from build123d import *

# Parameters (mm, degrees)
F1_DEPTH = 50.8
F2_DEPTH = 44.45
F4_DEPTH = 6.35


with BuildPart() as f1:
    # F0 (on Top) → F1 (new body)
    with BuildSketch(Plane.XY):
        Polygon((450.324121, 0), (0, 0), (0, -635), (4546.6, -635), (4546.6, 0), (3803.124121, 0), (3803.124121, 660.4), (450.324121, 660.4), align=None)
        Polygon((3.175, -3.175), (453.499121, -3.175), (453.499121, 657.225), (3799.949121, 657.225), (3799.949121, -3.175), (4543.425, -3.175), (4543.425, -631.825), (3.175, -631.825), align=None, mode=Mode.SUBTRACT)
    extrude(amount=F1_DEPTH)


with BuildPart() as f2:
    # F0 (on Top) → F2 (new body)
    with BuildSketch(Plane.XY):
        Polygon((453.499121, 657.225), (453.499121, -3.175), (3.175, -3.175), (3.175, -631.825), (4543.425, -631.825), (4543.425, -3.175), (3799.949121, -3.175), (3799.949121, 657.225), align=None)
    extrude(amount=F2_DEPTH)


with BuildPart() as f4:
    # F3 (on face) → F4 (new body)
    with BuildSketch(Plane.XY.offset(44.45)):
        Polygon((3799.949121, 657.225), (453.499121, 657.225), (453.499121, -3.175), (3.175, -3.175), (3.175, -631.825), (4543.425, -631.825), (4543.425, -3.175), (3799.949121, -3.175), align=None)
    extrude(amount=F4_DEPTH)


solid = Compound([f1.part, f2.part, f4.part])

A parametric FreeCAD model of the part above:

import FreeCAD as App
import Part
import Sketcher

V = App.Vector
Q = App.Units.Quantity

doc = App.newDocument("Part")
body = doc.addObject("PartDesign::Body", "Body")

sketch1 = body.newObject("Sketcher::SketchObject", "Sketch")
sketch1.AttachmentSupport = (doc.getObject("XY_Plane"), [""])
sketch1.MapMode = "FlatFace"
sketch1.addGeometry([
    Part.LineSegment(V(450.324121, 0, 0), V(0, 0, 0)),
    Part.LineSegment(V(0, 0, 0), V(0, -635, 0)),
    Part.LineSegment(V(0, -635, 0), V(4546.6, -635, 0)),
    Part.LineSegment(V(4546.6, -635, 0), V(4546.6, 0, 0)),
    Part.LineSegment(V(4546.6, 0, 0), V(3803.124121, 0, 0)),
    Part.LineSegment(V(3803.124121, 0, 0), V(3803.124121, 660.4, 0)),
    Part.LineSegment(V(3803.124121, 660.4, 0), V(450.324121, 660.4, 0)),
    Part.LineSegment(V(450.324121, 660.4, 0), V(450.324121, 0, 0)),
    Part.LineSegment(V(3.175, -631.825, 0), V(3.175, -3.175, 0)),
    Part.LineSegment(V(3.175, -3.175, 0), V(453.499121, -3.175, 0)),
    Part.LineSegment(V(453.499121, -3.175, 0), V(453.499121, 657.225, 0)),
    Part.LineSegment(V(453.499121, 657.225, 0), V(3799.949121, 657.225, 0)),
    Part.LineSegment(V(3799.949121, 657.225, 0), V(3799.949121, -3.175, 0)),
    Part.LineSegment(V(3799.949121, -3.175, 0), V(4543.425, -3.175, 0)),
    Part.LineSegment(V(4543.425, -3.175, 0), V(4543.425, -631.825, 0)),
    Part.LineSegment(V(4543.425, -631.825, 0), V(3.175, -631.825, 0)),
], False)
sketch1.addConstraint([
    Sketcher.Constraint("Coincident", 0, 2, 1, 1),
    Sketcher.Constraint("Coincident", 1, 2, 2, 1),
    Sketcher.Constraint("Coincident", 2, 2, 3, 1),
    Sketcher.Constraint("Coincident", 3, 2, 4, 1),
    Sketcher.Constraint("Coincident", 4, 2, 5, 1),
    Sketcher.Constraint("Coincident", 5, 2, 6, 1),
    Sketcher.Constraint("Coincident", 6, 2, 7, 1),
    Sketcher.Constraint("Coincident", 7, 2, 0, 1),
    Sketcher.Constraint("Coincident", 8, 2, 9, 1),
    Sketcher.Constraint("Coincident", 9, 2, 10, 1),
    Sketcher.Constraint("Coincident", 10, 2, 11, 1),
    Sketcher.Constraint("Coincident", 11, 2, 12, 1),
    Sketcher.Constraint("Coincident", 12, 2, 13, 1),
    Sketcher.Constraint("Coincident", 13, 2, 14, 1),
    Sketcher.Constraint("Coincident", 14, 2, 15, 1),
    Sketcher.Constraint("Coincident", 15, 2, 8, 1),
    Sketcher.Constraint("Horizontal", 0),
    Sketcher.Constraint("Vertical", 1),
    Sketcher.Constraint("Horizontal", 2),
    Sketcher.Constraint("Vertical", 3),
    Sketcher.Constraint("Horizontal", 4),
    Sketcher.Constraint("Vertical", 5),
    Sketcher.Constraint("Horizontal", 6),
    Sketcher.Constraint("Vertical", 7),
    Sketcher.Constraint("Vertical", 8),
    Sketcher.Constraint("Horizontal", 9),
    Sketcher.Constraint("Vertical", 10),
    Sketcher.Constraint("Horizontal", 11),
    Sketcher.Constraint("Vertical", 12),
    Sketcher.Constraint("Horizontal", 13),
    Sketcher.Constraint("Vertical", 14),
    Sketcher.Constraint("Horizontal", 15),
    Sketcher.Constraint("Coincident", 0, 2, -1, 1),
    Sketcher.Constraint("PointOnObject", 3, 2, -1),
    Sketcher.Constraint("Horizontal", 9, 2, 12, 2),
    Sketcher.Constraint("Equal", 0, 9),
    Sketcher.Constraint("Equal", 4, 13),
    Sketcher.Constraint("Equal", 7, 10),
    Sketcher.Constraint("DistanceX", 2, 1, 2, 2, Q("179 in")),
    Sketcher.Constraint("DistanceX", 6, 2, 6, 1, Q("132 in")),
    Sketcher.Constraint("DistanceY", 1, 2, 1, 1, Q("25 in")),
    Sketcher.Constraint("DistanceY", 5, 1, 5, 2, Q("26 in")),
    Sketcher.Constraint("DistanceX", 11, 1, 11, 2, Q("131.75 in")),
    Sketcher.Constraint("DistanceY", 8, 1, 8, 2, Q("24.75 in")),
    Sketcher.Constraint("DistanceX", -1, 1, 8, 2, Q("0.125 in")),
    Sketcher.Constraint("DistanceY", 8, 2, -1, 1, Q("0.125 in")),
    Sketcher.Constraint("DistanceX", 0, 2, 0, 1, Q("450.324121 mm")),
])
pad1 = body.newObject("PartDesign::Pad", "Pad")
pad1.Profile = sketch1
pad1.Length = Q("2 in")
body2 = doc.addObject("PartDesign::Body", "Body001")

sketch2 = body2.newObject("Sketcher::SketchObject", "Sketch001")
sketch2.AttachmentSupport = (doc.getObject("XY_Plane001"), [""])
sketch2.MapMode = "FlatFace"
sketch2.addGeometry([
    Part.LineSegment(V(453.499121, 657.225, 0), V(453.499121, -3.175, 0)),
    Part.LineSegment(V(453.499121, -3.175, 0), V(3.175, -3.175, 0)),
    Part.LineSegment(V(3.175, -3.175, 0), V(3.175, -631.825, 0)),
    Part.LineSegment(V(3.175, -631.825, 0), V(4543.425, -631.825, 0)),
    Part.LineSegment(V(4543.425, -631.825, 0), V(4543.425, -3.175, 0)),
    Part.LineSegment(V(4543.425, -3.175, 0), V(3799.949121, -3.175, 0)),
    Part.LineSegment(V(3799.949121, -3.175, 0), V(3799.949121, 657.225, 0)),
    Part.LineSegment(V(3799.949121, 657.225, 0), V(453.499121, 657.225, 0)),
], False)
sketch2.addConstraint([
    Sketcher.Constraint("Coincident", 0, 2, 1, 1),
    Sketcher.Constraint("Coincident", 1, 2, 2, 1),
    Sketcher.Constraint("Coincident", 2, 2, 3, 1),
    Sketcher.Constraint("Coincident", 3, 2, 4, 1),
    Sketcher.Constraint("Coincident", 4, 2, 5, 1),
    Sketcher.Constraint("Coincident", 5, 2, 6, 1),
    Sketcher.Constraint("Coincident", 6, 2, 7, 1),
    Sketcher.Constraint("Coincident", 7, 2, 0, 1),
    Sketcher.Constraint("Vertical", 0),
    Sketcher.Constraint("Horizontal", 1),
    Sketcher.Constraint("Vertical", 2),
    Sketcher.Constraint("Horizontal", 3),
    Sketcher.Constraint("Vertical", 4),
    Sketcher.Constraint("Horizontal", 5),
    Sketcher.Constraint("Vertical", 6),
    Sketcher.Constraint("Horizontal", 7),
    Sketcher.Constraint("Horizontal", 1, 2, 4, 2),
    Sketcher.Constraint("DistanceY", 0, 2, 0, 1, Q("26 in")),
    Sketcher.Constraint("DistanceX", 3, 1, 3, 2, Q("178.75 in")),
    Sketcher.Constraint("DistanceX", 7, 2, 7, 1, Q("131.75 in")),
    Sketcher.Constraint("DistanceY", 2, 2, 2, 1, Q("24.75 in")),
    Sketcher.Constraint("DistanceY", 0, 2, -1, 1, Q("0.125 in")),
    Sketcher.Constraint("DistanceX", -1, 1, 1, 2, Q("0.125 in")),
    Sketcher.Constraint("DistanceX", 1, 2, 1, 1, Q("450.324121 mm")),
])
pad2 = body2.newObject("PartDesign::Pad", "Pad001")
pad2.Profile = sketch2
pad2.Length = Q("1.75 in")
body3 = doc.addObject("PartDesign::Body", "Body002")

sketch3 = body3.newObject("Sketcher::SketchObject", "Sketch002")
sketch3.AttachmentSupport = (doc.getObject("XY_Plane002"), [""])
sketch3.MapMode = "FlatFace"
sketch3.AttachmentOffset = App.Placement(V(0, 0, 1.75 * 25.4), App.Rotation())
sketch3.addGeometry([
    Part.LineSegment(V(3799.949121, 657.225, 0), V(453.499121, 657.225, 0)),
    Part.LineSegment(V(453.499121, 657.225, 0), V(453.499121, -3.175, 0)),
    Part.LineSegment(V(453.499121, -3.175, 0), V(3.175, -3.175, 0)),
    Part.LineSegment(V(3.175, -3.175, 0), V(3.175, -631.825, 0)),
    Part.LineSegment(V(3.175, -631.825, 0), V(4543.425, -631.825, 0)),
    Part.LineSegment(V(4543.425, -631.825, 0), V(4543.425, -3.175, 0)),
    Part.LineSegment(V(4543.425, -3.175, 0), V(3799.949121, -3.175, 0)),
    Part.LineSegment(V(3799.949121, -3.175, 0), V(3799.949121, 657.225, 0)),
], False)
sketch3.addConstraint([
    Sketcher.Constraint("Coincident", 0, 2, 1, 1),
    Sketcher.Constraint("Coincident", 1, 2, 2, 1),
    Sketcher.Constraint("Coincident", 2, 2, 3, 1),
    Sketcher.Constraint("Coincident", 3, 2, 4, 1),
    Sketcher.Constraint("Coincident", 4, 2, 5, 1),
    Sketcher.Constraint("Coincident", 5, 2, 6, 1),
    Sketcher.Constraint("Coincident", 6, 2, 7, 1),
    Sketcher.Constraint("Coincident", 7, 2, 0, 1),
    Sketcher.Constraint("Horizontal", 0),
    Sketcher.Constraint("Vertical", 1),
    Sketcher.Constraint("Horizontal", 2),
    Sketcher.Constraint("Vertical", 3),
    Sketcher.Constraint("Horizontal", 4),
    Sketcher.Constraint("Vertical", 5),
    Sketcher.Constraint("Horizontal", 6),
    Sketcher.Constraint("Vertical", 7),
    Sketcher.Constraint("Horizontal", 2, 2, 5, 2),
    Sketcher.Constraint("DistanceY", 1, 2, 1, 1, Q("26 in")),
    Sketcher.Constraint("DistanceX", 0, 2, 0, 1, Q("131.75 in")),
    Sketcher.Constraint("DistanceX", 4, 1, 4, 2, Q("178.75 in")),
    Sketcher.Constraint("DistanceY", 3, 2, 3, 1, Q("24.75 in")),
    Sketcher.Constraint("DistanceY", -1, 1, 0, 2, Q("25.875 in")),
    Sketcher.Constraint("DistanceX", -1, 1, 2, 2, Q("0.125 in")),
    Sketcher.Constraint("DistanceX", 2, 2, 2, 1, Q("450.324121 mm")),
])
pad3 = body3.newObject("PartDesign::Pad", "Pad002")
pad3.Profile = sketch3
pad3.Length = Q("0.25 in")

doc.recompute()
